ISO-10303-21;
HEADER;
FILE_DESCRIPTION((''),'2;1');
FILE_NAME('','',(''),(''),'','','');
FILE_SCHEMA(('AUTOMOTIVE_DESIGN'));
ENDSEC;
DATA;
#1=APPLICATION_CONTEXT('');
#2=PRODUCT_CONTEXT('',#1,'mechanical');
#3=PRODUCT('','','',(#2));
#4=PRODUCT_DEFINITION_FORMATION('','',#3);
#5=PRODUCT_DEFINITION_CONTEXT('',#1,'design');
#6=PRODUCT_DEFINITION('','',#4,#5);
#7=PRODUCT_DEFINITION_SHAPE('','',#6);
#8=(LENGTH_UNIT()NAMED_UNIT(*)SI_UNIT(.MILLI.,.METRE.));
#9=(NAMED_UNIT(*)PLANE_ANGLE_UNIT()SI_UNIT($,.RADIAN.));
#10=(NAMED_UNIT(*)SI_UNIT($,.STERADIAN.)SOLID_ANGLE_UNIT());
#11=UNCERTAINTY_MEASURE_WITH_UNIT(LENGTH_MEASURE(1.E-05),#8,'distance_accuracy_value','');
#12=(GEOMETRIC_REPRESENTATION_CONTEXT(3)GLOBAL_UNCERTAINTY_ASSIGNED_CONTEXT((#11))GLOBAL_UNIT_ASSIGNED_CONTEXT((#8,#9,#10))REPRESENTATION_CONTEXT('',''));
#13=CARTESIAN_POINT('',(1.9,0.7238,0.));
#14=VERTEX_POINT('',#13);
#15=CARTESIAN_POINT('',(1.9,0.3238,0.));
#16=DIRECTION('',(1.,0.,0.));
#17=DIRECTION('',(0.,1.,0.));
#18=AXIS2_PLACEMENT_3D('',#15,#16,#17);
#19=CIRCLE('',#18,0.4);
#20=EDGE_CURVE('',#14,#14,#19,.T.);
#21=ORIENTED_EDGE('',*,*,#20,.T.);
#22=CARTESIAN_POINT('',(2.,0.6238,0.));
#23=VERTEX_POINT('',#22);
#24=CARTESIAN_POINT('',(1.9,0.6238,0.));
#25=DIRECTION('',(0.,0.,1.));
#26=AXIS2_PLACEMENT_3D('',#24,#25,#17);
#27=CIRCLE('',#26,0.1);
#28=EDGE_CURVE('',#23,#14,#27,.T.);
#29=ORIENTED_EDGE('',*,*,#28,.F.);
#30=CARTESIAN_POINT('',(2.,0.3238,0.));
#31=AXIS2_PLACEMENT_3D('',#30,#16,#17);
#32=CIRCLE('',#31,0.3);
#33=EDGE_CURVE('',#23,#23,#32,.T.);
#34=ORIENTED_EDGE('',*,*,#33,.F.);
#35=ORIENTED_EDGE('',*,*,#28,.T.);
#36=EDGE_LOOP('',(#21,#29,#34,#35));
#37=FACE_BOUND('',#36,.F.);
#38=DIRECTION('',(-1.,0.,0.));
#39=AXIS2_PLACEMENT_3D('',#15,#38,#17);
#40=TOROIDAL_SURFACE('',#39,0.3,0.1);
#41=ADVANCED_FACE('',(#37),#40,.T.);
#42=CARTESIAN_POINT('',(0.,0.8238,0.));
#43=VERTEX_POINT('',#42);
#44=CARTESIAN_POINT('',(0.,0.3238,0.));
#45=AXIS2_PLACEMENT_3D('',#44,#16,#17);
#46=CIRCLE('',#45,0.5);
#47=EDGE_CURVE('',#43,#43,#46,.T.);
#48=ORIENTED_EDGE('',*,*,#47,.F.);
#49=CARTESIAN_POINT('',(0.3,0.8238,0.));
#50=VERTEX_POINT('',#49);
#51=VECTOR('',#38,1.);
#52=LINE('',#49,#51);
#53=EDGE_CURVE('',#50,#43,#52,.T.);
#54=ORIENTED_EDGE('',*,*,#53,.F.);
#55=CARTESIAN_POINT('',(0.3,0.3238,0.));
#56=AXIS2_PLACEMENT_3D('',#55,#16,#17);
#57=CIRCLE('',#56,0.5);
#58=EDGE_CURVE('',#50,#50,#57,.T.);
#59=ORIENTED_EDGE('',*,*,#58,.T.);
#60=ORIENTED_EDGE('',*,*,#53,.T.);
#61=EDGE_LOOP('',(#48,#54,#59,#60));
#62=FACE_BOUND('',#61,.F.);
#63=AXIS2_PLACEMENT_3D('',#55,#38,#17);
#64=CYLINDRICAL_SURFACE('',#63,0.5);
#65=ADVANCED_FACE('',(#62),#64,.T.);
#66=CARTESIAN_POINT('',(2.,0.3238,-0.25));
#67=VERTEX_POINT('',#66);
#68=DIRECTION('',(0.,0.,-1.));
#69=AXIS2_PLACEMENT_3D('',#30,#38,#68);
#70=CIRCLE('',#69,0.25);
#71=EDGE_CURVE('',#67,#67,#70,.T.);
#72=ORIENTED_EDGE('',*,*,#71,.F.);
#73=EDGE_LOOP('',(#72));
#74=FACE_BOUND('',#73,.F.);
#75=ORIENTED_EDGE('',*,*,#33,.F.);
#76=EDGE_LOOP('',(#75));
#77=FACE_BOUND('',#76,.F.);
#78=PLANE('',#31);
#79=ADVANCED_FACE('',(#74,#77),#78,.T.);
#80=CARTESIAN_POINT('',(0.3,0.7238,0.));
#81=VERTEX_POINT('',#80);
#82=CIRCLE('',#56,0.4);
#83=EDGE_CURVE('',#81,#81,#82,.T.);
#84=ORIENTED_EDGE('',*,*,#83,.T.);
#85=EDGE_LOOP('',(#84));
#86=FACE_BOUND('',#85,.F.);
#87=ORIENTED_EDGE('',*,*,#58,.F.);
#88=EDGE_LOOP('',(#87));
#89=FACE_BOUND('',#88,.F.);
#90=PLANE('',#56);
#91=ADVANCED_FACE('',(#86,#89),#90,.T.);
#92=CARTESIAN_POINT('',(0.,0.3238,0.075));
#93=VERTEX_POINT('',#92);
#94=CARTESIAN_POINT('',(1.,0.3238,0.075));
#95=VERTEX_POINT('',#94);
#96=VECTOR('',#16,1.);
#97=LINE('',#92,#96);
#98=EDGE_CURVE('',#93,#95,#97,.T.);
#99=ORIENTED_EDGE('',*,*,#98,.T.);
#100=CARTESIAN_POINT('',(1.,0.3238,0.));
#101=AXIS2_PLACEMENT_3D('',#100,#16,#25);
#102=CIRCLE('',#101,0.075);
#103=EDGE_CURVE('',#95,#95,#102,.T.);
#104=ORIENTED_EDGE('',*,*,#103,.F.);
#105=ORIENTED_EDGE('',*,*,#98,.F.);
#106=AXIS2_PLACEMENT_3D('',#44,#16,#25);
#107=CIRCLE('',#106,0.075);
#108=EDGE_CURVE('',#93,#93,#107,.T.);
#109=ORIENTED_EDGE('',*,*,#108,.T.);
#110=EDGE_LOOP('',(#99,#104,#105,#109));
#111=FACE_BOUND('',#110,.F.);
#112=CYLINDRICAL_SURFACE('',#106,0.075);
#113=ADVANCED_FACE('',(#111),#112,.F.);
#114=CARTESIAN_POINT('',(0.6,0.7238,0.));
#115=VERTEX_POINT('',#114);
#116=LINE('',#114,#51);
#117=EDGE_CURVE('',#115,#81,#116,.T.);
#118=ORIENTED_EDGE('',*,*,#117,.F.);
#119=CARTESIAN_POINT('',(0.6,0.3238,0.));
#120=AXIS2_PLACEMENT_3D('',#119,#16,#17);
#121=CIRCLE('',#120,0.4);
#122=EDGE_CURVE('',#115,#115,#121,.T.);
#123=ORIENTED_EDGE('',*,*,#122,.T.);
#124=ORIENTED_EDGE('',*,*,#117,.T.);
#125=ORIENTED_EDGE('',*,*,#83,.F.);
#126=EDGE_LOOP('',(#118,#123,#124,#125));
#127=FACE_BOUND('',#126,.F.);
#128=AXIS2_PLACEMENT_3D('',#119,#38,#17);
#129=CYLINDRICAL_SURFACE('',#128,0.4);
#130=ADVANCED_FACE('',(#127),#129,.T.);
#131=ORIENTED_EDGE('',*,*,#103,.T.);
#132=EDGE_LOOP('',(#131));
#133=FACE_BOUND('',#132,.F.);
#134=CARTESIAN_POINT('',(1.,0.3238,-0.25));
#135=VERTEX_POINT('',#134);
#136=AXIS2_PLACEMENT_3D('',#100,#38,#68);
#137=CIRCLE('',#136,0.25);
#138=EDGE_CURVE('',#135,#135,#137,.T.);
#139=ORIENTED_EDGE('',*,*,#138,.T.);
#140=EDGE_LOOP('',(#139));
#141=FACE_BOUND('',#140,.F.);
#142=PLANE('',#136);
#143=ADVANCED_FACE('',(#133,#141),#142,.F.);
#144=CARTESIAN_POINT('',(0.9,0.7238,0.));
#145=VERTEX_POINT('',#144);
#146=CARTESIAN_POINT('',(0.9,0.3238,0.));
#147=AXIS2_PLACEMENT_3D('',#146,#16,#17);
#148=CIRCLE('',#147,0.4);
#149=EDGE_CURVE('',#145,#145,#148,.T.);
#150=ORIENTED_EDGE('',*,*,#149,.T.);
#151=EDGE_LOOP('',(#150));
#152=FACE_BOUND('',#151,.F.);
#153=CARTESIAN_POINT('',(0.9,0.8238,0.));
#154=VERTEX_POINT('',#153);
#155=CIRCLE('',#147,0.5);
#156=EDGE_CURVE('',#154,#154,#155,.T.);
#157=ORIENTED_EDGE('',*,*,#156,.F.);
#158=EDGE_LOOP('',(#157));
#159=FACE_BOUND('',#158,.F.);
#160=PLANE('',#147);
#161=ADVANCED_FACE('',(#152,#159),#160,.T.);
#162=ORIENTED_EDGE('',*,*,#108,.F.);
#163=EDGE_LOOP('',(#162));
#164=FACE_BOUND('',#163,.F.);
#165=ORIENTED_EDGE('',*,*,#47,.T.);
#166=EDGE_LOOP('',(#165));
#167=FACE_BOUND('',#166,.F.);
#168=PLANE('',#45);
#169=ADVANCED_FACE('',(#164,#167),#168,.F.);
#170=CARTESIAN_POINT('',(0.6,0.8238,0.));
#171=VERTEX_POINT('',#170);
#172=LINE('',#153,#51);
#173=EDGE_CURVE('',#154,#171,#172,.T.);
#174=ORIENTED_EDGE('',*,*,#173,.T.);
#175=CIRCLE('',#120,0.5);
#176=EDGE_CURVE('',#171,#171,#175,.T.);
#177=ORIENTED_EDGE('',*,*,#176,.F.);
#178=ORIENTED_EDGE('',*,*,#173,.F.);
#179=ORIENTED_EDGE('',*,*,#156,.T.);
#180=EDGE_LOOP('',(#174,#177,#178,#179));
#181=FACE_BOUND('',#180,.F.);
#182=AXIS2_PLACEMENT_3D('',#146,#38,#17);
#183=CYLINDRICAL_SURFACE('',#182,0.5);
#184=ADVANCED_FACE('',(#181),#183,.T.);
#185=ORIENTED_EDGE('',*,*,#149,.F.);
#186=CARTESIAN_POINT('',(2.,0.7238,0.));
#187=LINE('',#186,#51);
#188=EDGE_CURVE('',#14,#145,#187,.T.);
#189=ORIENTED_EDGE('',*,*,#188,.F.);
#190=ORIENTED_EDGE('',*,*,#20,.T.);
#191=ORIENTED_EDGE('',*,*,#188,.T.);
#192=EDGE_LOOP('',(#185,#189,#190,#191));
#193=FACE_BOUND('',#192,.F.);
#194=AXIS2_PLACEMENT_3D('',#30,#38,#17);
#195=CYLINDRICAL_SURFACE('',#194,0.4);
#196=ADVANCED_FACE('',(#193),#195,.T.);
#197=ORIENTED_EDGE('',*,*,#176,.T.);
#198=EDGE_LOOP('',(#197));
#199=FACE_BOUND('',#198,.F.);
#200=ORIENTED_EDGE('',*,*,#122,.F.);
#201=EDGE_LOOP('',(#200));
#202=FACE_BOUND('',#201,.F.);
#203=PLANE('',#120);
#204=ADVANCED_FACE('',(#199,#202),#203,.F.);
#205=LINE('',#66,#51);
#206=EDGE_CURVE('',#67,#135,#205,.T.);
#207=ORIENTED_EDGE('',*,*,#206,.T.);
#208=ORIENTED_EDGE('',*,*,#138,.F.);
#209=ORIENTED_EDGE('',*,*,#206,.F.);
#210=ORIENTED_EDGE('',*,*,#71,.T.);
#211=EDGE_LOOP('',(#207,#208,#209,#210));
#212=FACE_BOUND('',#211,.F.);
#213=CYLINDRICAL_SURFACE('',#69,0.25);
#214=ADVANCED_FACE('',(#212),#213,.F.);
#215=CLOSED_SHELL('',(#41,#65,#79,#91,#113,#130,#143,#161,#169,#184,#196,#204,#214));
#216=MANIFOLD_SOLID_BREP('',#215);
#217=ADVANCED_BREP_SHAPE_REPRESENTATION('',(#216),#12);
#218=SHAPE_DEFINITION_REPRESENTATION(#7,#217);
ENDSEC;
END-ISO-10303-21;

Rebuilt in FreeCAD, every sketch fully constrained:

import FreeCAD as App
import Part
import Sketcher
from FreeCAD import Vector


def edges_at(feature, points):
    """Names of the edges that pass closest to the given points."""
    edges = feature.Shape.Edges
    near = lambda p: min(range(len(edges)), key=lambda i: edges[i].distToShape(Part.Vertex(*p))[0])
    return sorted({f"Edge{near(p) + 1}" for p in points})


def add_polygon(sketch, points):
    """Adds a closed chain of lines whose ends are joined by coincident constraints."""
    first, n = sketch.GeometryCount, len(points)
    for a, b in zip(points, points[1:] + points[:1]):
        sketch.addGeometry(Part.LineSegment(App.Vector(*a, 0), App.Vector(*b, 0)), False)
    for i in range(n):
        sketch.addConstraint(Sketcher.Constraint("Coincident", first + i, 2, first + (i + 1) % n, 1))

doc = App.newDocument("Part")
body = doc.addObject("PartDesign::Body", "Body")

# Sketch on XY plane
sketch1 = body.newObject("Sketcher::SketchObject", "Sketch")
sketch1.AttachmentSupport = (doc.getObject("XY_Plane"), [""])
sketch1.MapMode = "FlatFace"
add_polygon(sketch1, [(0, 0.82), (0, 0.32), (2, 0.32), (2, 0.72), (0.9, 0.72), (0.9, 0.82), (0.6, 0.82), (0.6, 0.72), (0.3, 0.72), (0.3, 0.82)])  # lines 0-9
sketch1.addGeometry(Part.LineSegment(Vector(0, 0.32, 0), Vector(2, 0.32, 0)), True)  # axis
sketch1.addConstraint(Sketcher.Constraint("Vertical", 0))
sketch1.addConstraint(Sketcher.Constraint("Horizontal", 1))
sketch1.addConstraint(Sketcher.Constraint("Vertical", 2))
sketch1.addConstraint(Sketcher.Constraint("Horizontal", 3))
sketch1.addConstraint(Sketcher.Constraint("Vertical", 4))
sketch1.addConstraint(Sketcher.Constraint("Horizontal", 5))
sketch1.addConstraint(Sketcher.Constraint("Vertical", 6))
sketch1.addConstraint(Sketcher.Constraint("Horizontal", 7))
sketch1.addConstraint(Sketcher.Constraint("Vertical", 8))
sketch1.addConstraint(Sketcher.Constraint("Horizontal", 9))
sketch1.addConstraint(Sketcher.Constraint("Horizontal", 10))
sketch1.addConstraint(Sketcher.Constraint("Coincident", 10, 1, 0, 2))
sketch1.addConstraint(Sketcher.Constraint("PointOnObject", 0, 2, -2))
sketch1.addConstraint(Sketcher.Constraint("Horizontal", 3, 2, 6, 2))
sketch1.addConstraint(Sketcher.Constraint("Horizontal", 5, 2, 8, 2))
sketch1.addConstraint(Sketcher.Constraint("Vertical", 2, 2, 10, 2))
sketch1.addConstraint(Sketcher.Constraint("Equal", 5, 7))
sketch1.addConstraint(Sketcher.Constraint("Equal", 7, 9))
sketch1.addConstraint(Sketcher.Constraint("DistanceX", 1, 1, 1, 2, 2.0))
sketch1.addConstraint(Sketcher.Constraint("DistanceX", 5, 2, 5, 1, 0.3))
sketch1.addConstraint(Sketcher.Constraint("DistanceY", 0, 2, 0, 1, 0.5))
sketch1.addConstraint(Sketcher.Constraint("DistanceY", 2, 1, 2, 2, 0.4))
sketch1.addConstraint(Sketcher.Constraint("DistanceY", -1, 1, 0, 2, 0.3238))
revolution = body.newObject("PartDesign::Revolution", "Revolution")
revolution.Profile = sketch1
revolution.ReferenceAxis = (sketch1, ["Axis0"])
revolution.Angle = 360

# Sketch on YZ plane
sketch2 = body.newObject("Sketcher::SketchObject", "Sketch001")
sketch2.AttachmentSupport = (doc.getObject("YZ_Plane"), [""])
sketch2.MapMode = "FlatFace"
sketch2.addGeometry(Part.Circle(Vector(0.32, 0, 0), Vector(0, 0, 1), 0.07), False)
sketch2.addConstraint(Sketcher.Constraint("PointOnObject", 0, 3, -1))
sketch2.addConstraint(Sketcher.Constraint("Diameter", 0, 0.15))
sketch2.addConstraint(Sketcher.Constraint("DistanceX", -1, 1, 0, 3, 0.3238))
doc.recompute()
hole = body.newObject("PartDesign::Hole", "Hole")
hole.Profile = sketch2
hole.ThreadType = "None"
hole.Diameter = 0.15
hole.DepthType = "Dimension"
hole.Depth = 8
hole.DrillPoint = "Flat"
hole.Reversed = True

# Sketch on YZ plane
sketch3 = body.newObject("Sketcher::SketchObject", "Sketch002")
sketch3.AttachmentSupport = (doc.getObject("YZ_Plane"), [""])
sketch3.MapMode = "FlatFace"
sketch3.AttachmentOffset = App.Placement(Vector(0, 0, 2), App.Rotation())
sketch3.addGeometry(Part.Circle(Vector(0.32, 0, 0), Vector(0, 0, 1), 0.25), False)
sketch3.addConstraint(Sketcher.Constraint("PointOnObject", 0, 3, -1))
sketch3.addConstraint(Sketcher.Constraint("Diameter", 0, 0.5))
sketch3.addConstraint(Sketcher.Constraint("DistanceX", -1, 1, 0, 3, 0.3238))
doc.recompute()
hole2 = body.newObject("PartDesign::Hole", "Hole001")
hole2.Profile = sketch3
hole2.ThreadType = "None"
hole2.Diameter = 0.5
hole2.DepthType = "Dimension"
hole2.Depth = 1
hole2.DrillPoint = "Flat"
doc.recompute()

fillet = body.newObject("PartDesign::Fillet", "Fillet")
fillet.Base = (hole2, edges_at(hole2, [(2, -0.076, 0)]))
fillet.Radius = 0.1

doc.recompute()
